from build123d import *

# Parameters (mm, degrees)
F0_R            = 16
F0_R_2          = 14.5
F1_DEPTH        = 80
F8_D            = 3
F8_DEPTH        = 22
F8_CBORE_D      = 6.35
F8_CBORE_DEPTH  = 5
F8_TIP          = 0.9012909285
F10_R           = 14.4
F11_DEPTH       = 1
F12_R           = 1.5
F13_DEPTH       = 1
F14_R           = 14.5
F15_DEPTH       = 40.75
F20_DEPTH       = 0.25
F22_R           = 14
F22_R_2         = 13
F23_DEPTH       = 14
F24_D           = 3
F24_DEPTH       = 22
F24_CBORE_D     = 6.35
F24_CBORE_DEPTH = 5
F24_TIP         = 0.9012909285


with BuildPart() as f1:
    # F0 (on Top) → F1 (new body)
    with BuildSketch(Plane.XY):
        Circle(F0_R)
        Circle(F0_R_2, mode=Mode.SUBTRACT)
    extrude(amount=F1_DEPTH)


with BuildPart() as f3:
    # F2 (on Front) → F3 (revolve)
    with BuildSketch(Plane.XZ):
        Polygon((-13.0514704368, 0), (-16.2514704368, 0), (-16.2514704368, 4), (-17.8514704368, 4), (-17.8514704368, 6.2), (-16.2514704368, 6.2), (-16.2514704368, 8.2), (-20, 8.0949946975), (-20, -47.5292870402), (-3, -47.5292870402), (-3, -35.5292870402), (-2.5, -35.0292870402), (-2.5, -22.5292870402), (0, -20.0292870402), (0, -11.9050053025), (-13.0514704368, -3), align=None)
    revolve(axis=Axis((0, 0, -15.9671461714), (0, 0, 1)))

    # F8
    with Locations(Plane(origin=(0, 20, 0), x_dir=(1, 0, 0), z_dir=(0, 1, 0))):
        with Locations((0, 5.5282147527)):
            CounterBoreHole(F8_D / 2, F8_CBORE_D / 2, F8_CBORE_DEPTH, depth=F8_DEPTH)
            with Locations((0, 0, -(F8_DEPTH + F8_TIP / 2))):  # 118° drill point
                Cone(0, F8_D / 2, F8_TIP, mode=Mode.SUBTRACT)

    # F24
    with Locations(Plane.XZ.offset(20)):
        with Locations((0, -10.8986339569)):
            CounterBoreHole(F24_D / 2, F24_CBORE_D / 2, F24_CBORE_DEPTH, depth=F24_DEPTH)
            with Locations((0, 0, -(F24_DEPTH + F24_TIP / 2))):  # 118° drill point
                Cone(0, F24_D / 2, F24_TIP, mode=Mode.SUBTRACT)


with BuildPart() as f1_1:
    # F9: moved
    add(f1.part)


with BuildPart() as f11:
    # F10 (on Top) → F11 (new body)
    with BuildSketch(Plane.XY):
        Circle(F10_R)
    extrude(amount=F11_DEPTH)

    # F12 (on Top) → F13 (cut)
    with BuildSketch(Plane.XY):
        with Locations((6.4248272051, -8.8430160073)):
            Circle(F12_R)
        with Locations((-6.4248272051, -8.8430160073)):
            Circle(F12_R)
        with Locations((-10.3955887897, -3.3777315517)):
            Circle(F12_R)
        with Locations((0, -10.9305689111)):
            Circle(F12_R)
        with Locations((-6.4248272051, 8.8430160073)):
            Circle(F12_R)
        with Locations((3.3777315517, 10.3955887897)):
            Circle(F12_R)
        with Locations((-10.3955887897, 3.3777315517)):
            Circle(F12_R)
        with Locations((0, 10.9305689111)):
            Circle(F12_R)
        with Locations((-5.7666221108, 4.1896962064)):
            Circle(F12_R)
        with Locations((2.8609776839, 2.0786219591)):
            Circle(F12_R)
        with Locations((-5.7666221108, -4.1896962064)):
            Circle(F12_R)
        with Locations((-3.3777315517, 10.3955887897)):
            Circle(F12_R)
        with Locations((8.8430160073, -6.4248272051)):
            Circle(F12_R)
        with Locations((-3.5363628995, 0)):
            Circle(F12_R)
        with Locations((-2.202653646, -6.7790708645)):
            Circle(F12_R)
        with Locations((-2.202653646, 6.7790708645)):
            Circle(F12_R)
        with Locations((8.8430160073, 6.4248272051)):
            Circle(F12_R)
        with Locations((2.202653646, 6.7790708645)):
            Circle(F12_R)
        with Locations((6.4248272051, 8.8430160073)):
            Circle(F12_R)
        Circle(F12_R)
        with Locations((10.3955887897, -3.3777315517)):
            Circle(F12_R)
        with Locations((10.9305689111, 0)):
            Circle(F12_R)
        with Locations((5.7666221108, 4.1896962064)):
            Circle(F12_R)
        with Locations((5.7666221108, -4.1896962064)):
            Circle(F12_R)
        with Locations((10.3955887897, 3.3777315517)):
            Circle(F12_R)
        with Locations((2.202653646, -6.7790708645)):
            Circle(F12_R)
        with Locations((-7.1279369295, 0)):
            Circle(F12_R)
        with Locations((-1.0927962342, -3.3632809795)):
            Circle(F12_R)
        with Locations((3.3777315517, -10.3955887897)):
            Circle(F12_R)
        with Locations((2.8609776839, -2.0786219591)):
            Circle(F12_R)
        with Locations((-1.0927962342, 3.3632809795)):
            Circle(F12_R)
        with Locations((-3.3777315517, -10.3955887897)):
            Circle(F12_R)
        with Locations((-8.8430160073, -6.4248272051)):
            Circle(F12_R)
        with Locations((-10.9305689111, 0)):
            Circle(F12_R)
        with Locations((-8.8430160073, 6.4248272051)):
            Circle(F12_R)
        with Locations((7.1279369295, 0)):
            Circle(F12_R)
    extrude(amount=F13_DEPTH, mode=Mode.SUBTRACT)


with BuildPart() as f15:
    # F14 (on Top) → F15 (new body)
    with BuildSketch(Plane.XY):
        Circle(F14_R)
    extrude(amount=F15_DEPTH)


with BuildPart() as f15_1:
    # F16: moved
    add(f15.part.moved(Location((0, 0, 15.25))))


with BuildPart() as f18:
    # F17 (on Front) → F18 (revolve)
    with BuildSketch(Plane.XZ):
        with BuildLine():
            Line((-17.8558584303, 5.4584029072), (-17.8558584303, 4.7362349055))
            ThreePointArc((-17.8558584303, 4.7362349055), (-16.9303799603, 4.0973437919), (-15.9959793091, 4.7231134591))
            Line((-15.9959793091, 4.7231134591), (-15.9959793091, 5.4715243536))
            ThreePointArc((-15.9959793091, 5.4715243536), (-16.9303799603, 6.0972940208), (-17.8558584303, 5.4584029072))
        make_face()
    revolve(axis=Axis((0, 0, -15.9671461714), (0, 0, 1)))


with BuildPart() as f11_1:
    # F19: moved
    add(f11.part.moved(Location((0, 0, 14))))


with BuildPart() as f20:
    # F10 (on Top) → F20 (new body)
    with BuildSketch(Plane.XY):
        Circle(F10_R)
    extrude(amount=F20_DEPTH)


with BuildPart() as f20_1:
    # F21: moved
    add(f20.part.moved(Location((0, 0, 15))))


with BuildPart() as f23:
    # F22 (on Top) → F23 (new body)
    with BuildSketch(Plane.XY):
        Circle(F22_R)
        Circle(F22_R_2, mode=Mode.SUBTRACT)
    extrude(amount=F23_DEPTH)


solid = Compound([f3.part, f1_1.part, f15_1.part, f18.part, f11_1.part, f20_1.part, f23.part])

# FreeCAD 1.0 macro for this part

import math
import FreeCAD as App
import Part
import Sketcher
from FreeCAD import Vector
Q = App.Units.Quantity

doc = App.newDocument("Part")
params = doc.addObject("Spreadsheet::Sheet", "Params")
for row, (alias, value) in enumerate([
    ("sketch1_diameter", "32 mm"),
    ("sketch1_diameter2", "29 mm"),
    ("pad1_length", "80 mm"),
    ("sketch2_width", "17 mm"),
    ("sketch2_height", "4 mm"),
    ("sketch2_height2", "2 mm"),
    ("sketch2_height3", "12 mm"),
    ("sketch2_height4", "3 mm"),
    ("revolution_angle", "360 deg"),
    ("sketch3_diameter", "3 mm"),
    ("hole_diameter", "3 mm"),
    ("hole_depth", "22 mm"),
    ("hole_cbore_diameter", "6.35 mm"),
    ("hole_cbore_depth", "5 mm"),
    ("sketch4_diameter", "3 mm"),
    ("hole2_diameter", "3 mm"),
    ("hole2_depth", "22 mm"),
    ("hole2_cbore_diameter", "6.35 mm"),
    ("hole2_cbore_depth", "5 mm"),
    ("sketch5_diameter", "28.8 mm"),
    ("pad2_length", "1 mm"),
    ("sketch6_diameter", "3 mm"),
    ("pocket1_length", "1 mm"),
    ("sketch7_diameter", "29 mm"),
    ("pad3_length", "40.75 mm"),
    ("sketch8_radius", "1 mm"),
    ("revolution2_angle", "360 deg"),
    ("sketch9_diameter", "28.8 mm"),
    ("pad4_length", "0.25 mm"),
    ("sketch10_diameter", "28 mm"),
    ("sketch10_diameter2", "26 mm"),
    ("pad5_length", "14 mm"),
], start=1):
    params.set(f"A{row}", alias)
    params.set(f"B{row}", "=" + value)
    params.setAlias(f"B{row}", alias)

body = doc.addObject("PartDesign::Body", "Body")

# Sketch on XY plane
sketch1 = body.newObject("Sketcher::SketchObject", "Sketch")
sketch1.AttachmentSupport = (doc.getObject("XY_Plane"), [""])
sketch1.MapMode = "FlatFace"
sketch1.addGeometry([
    Part.Circle(Vector(0, 0, 0), Vector(0, 0, 1), 16),
    Part.Circle(Vector(0, 0, 0), Vector(0, 0, 1), 14),
], False)
sketch1.addConstraint([
    Sketcher.Constraint("Coincident", 0, 3, -1, 1),
    Sketcher.Constraint("Coincident", 1, 3, -1, 1),
    Sketcher.Constraint("Diameter", 0, 32.0),
    Sketcher.Constraint("Diameter", 1, 29.0),
])
sketch1.setExpression("Constraints[2]", "Params.sketch1_diameter")
sketch1.setExpression("Constraints[3]", "Params.sketch1_diameter2")
pad1 = body.newObject("PartDesign::Pad", "Pad")
pad1.Profile = sketch1
pad1.setExpression("Length", "Params.pad1_length")
body2 = doc.addObject("PartDesign::Body", "Body001")

# Sketch on XZ plane
sketch2 = body2.newObject("Sketcher::SketchObject", "Sketch001")
sketch2.AttachmentSupport = (doc.getObject("XZ_Plane001"), [""])
sketch2.MapMode = "FlatFace"
sketch2.addGeometry([
    Part.LineSegment(Vector(-13.1, 0, 0), Vector(-16.3, 0, 0)),  # 0
    Part.LineSegment(Vector(-16.3, 0, 0), Vector(-16.3, 4, 0)),  # 1
    Part.LineSegment(Vector(-16.3, 4, 0), Vector(-17.9, 4, 0)),  # 2
    Part.LineSegment(Vector(-17.9, 4, 0), Vector(-17.9, 6.2, 0)),  # 3
    Part.LineSegment(Vector(-17.9, 6.2, 0), Vector(-16.3, 6.2, 0)),  # 4
    Part.LineSegment(Vector(-16.3, 6.2, 0), Vector(-16.3, 8.2, 0)),  # 5
    Part.LineSegment(Vector(-16.3, 8.2, 0), Vector(-20, 8.1, 0)),  # 6
    Part.LineSegment(Vector(-20, 8.1, 0), Vector(-20, -47.5, 0)),  # 7
    Part.LineSegment(Vector(-20, -47.5, 0), Vector(-3, -47.5, 0)),  # 8
    Part.LineSegment(Vector(-3, -47.5, 0), Vector(-3, -35.5, 0)),  # 9
    Part.LineSegment(Vector(-3, -35.5, 0), Vector(-2.5, -35, 0)),  # 10
    Part.LineSegment(Vector(-2.5, -35, 0), Vector(-2.5, -22.5, 0)),  # 11
    Part.LineSegment(Vector(-2.5, -22.5, 0), Vector(0, -20, 0)),  # 12
    Part.LineSegment(Vector(0, -20, 0), Vector(0, -11.9, 0)),  # 13
    Part.LineSegment(Vector(0, -11.9, 0), Vector(-13.1, -3, 0)),  # 14
    Part.LineSegment(Vector(-13.1, -3, 0), Vector(-13.1, 0, 0)),  # 15
], False)
sketch2.addConstraint([
    Sketcher.Constraint("Coincident", 0, 2, 1, 1),
    Sketcher.Constraint("Coincident", 1, 2, 2, 1),
    Sketcher.Constraint("Coincident", 2, 2, 3, 1),
    Sketcher.Constraint("Coincident", 3, 2, 4, 1),
    Sketcher.Constraint("Coincident", 4, 2, 5, 1),
    Sketcher.Constraint("Coincident", 5, 2, 6, 1),
    Sketcher.Constraint("Coincident", 6, 2, 7, 1),
    Sketcher.Constraint("Coincident", 7, 2, 8, 1),
    Sketcher.Constraint("Coincident", 8, 2, 9, 1),
    Sketcher.Constraint("Coincident", 9, 2, 10, 1),
    Sketcher.Constraint("Coincident", 10, 2, 11, 1),
    Sketcher.Constraint("Coincident", 11, 2, 12, 1),
    Sketcher.Constraint("Coincident", 12, 2, 13, 1),
    Sketcher.Constraint("Coincident", 13, 2, 14, 1),
    Sketcher.Constraint("Coincident", 14, 2, 15, 1),
    Sketcher.Constraint("Coincident", 15, 2, 0, 1),
    Sketcher.Constraint("Horizontal", 0),
    Sketcher.Constraint("Vertical", 1),
    Sketcher.Constraint("Horizontal", 2),
    Sketcher.Constraint("Vertical", 3),
    Sketcher.Constraint("Horizontal", 4),
    Sketcher.Constraint("Vertical", 5),
    Sketcher.Constraint("Vertical", 7),
    Sketcher.Constraint("Horizontal", 8),
    Sketcher.Constraint("Vertical", 9),
    Sketcher.Constraint("Vertical", 11),
    Sketcher.Constraint("Vertical", 13),
    Sketcher.Constraint("Vertical", 15),
    Sketcher.Constraint("PointOnObject", 0, 2, -1),
    Sketcher.Constraint("PointOnObject", 12, 2, -2),
    Sketcher.Constraint("Parallel", 10, 12),
    Sketcher.Constraint("Vertical", 1, 2, 4, 2),
    Sketcher.Constraint("DistanceX", 8, 1, 8, 2, 17.0),
    Sketcher.Constraint("DistanceY", 1, 1, 1, 2, 4.0),
    Sketcher.Constraint("DistanceY", 5, 1, 5, 2, 2.0),
    Sketcher.Constraint("DistanceY", 9, 1, 9, 2, 12.0),
    Sketcher.Constraint("DistanceY", 15, 1, 15, 2, 3.0),
    Sketcher.Constraint("Angle", 10, Q("45 deg")),
    Sketcher.Constraint("DistanceX", 0, 2, 0, 1, 3.2),
    Sketcher.Constraint("DistanceX", 2, 2, 2, 1, 1.6),
    Sketcher.Constraint("DistanceY", 3, 1, 3, 2, 2.2),
    Sketcher.Constraint("DistanceY", 11, 1, 11, 2, 12.5),
    Sketcher.Constraint("DistanceX", 6, 2, -1, 1, 20.0),
    Sketcher.Constraint("DistanceY", 9, 2, 11, 2, 13.0),
    Sketcher.Constraint("Distance", 14, 15.8),
    Sketcher.Constraint("Distance", 6, 3.75),
    Sketcher.Constraint("DistanceY", 7, 2, 7, 1, 55.624282),
    Sketcher.Constraint("DistanceY", 13, 1, 13, 2, 8.124282),
])
sketch2.setExpression("Constraints[32]", "Params.sketch2_width")
sketch2.setExpression("Constraints[33]", "Params.sketch2_height")
sketch2.setExpression("Constraints[34]", "Params.sketch2_height2")
sketch2.setExpression("Constraints[35]", "Params.sketch2_height3")
sketch2.setExpression("Constraints[36]", "Params.sketch2_height4")
revolution = body2.newObject("PartDesign::Revolution", "Revolution")
revolution.Profile = sketch2
revolution.ReferenceAxis = (sketch2, ["V_Axis"])
revolution.setExpression("Angle", "Params.revolution_angle")

# Sketch on XZ plane
sketch3 = body2.newObject("Sketcher::SketchObject", "Sketch002")
sketch3.AttachmentSupport = (doc.getObject("XZ_Plane001"), [""])
sketch3.MapMode = "FlatFace"
sketch3.AttachmentOffset = App.Placement(Vector(0, 0, -20), App.Rotation())
sketch3.addGeometry(Part.Circle(Vector(0, -5.5, 0), Vector(0, 0, 1), 1.5), False)
sketch3.addConstraint([
    Sketcher.Constraint("PointOnObject", 0, 3, -2),
    Sketcher.Constraint("Diameter", 0, 3.0),
    Sketcher.Constraint("DistanceY", 0, 3, -1, 1, 5.528215),
])
sketch3.setExpression("Constraints[1]", "Params.sketch3_diameter")
doc.recompute()
hole = body2.newObject("PartDesign::Hole", "Hole")
hole.Profile = sketch3
hole.ThreadType = "None"
hole.setExpression("Diameter", "Params.hole_diameter")
hole.DepthType = "Dimension"
hole.setExpression("Depth", "Params.hole_depth")
hole.DrillPoint = "Angled"
hole.DrillPointAngle = 118
hole.HoleCutType = "Counterbore"
hole.setExpression("HoleCutDiameter", "Params.hole_cbore_diameter")
hole.setExpression("HoleCutDepth", "Params.hole_cbore_depth")
hole.Reversed = True

# Sketch on XZ plane
sketch4 = body2.newObject("Sketcher::SketchObject", "Sketch003")
sketch4.AttachmentSupport = (doc.getObject("XZ_Plane001"), [""])
sketch4.MapMode = "FlatFace"
sketch4.AttachmentOffset = App.Placement(Vector(0, 0, 20), App.Rotation())
sketch4.addGeometry(Part.Circle(Vector(0, -10.9, 0), Vector(0, 0, 1), 1.5), False)
sketch4.addConstraint([
    Sketcher.Constraint("PointOnObject", 0, 3, -2),
    Sketcher.Constraint("Diameter", 0, 3.0),
    Sketcher.Constraint("DistanceY", 0, 3, -1, 1, 10.898634),
])
sketch4.setExpression("Constraints[1]", "Params.sketch4_diameter")
doc.recompute()
hole2 = body2.newObject("PartDesign::Hole", "Hole001")
hole2.Profile = sketch4
hole2.ThreadType = "None"
hole2.setExpression("Diameter", "Params.hole2_diameter")
hole2.DepthType = "Dimension"
hole2.setExpression("Depth", "Params.hole2_depth")
hole2.DrillPoint = "Angled"
hole2.DrillPointAngle = 118
hole2.HoleCutType = "Counterbore"
hole2.setExpression("HoleCutDiameter", "Params.hole2_cbore_diameter")
hole2.setExpression("HoleCutDepth", "Params.hole2_cbore_depth")
body3 = doc.addObject("PartDesign::Body", "Body002")

# Sketch on XY plane
sketch5 = body3.newObject("Sketcher::SketchObject", "Sketch004")
sketch5.AttachmentSupport = (doc.getObject("XY_Plane002"), [""])
sketch5.MapMode = "FlatFace"
sketch5.addGeometry(Part.Circle(Vector(0, 0, 0), Vector(0, 0, 1), 14), False)
sketch5.addConstraint([
    Sketcher.Constraint("Coincident", 0, 3, -1, 1),
    Sketcher.Constraint("Diameter", 0, 28.8),
])
sketch5.setExpression("Constraints[1]", "Params.sketch5_diameter")
pad2 = body3.newObject("PartDesign::Pad", "Pad001")
pad2.Profile = sketch5
pad2.setExpression("Length", "Params.pad2_length")

# Sketch on XY plane
sketch6 = body3.newObject("Sketcher::SketchObject", "Sketch005")
sketch6.AttachmentSupport = (doc.getObject("XY_Plane002"), [""])
sketch6.MapMode = "FlatFace"
sketch6.addGeometry([
    Part.Circle(Vector(6.4, -8.8, 0), Vector(0, 0, 1), 1.5),  # 0
    Part.Circle(Vector(-6.4, -8.8, 0), Vector(0, 0, 1), 1.5),  # 1
    Part.Circle(Vector(-10.4, -3.4, 0), Vector(0, 0, 1), 1.5),  # 2
    Part.Circle(Vector(0, -10.9, 0), Vector(0, 0, 1), 1.5),  # 3
    Part.Circle(Vector(-6.4, 8.8, 0), Vector(0, 0, 1), 1.5),  # 4
    Part.Circle(Vector(3.4, 10.4, 0), Vector(0, 0, 1), 1.5),  # 5
    Part.Circle(Vector(-10.4, 3.4, 0), Vector(0, 0, 1), 1.5),  # 6
    Part.Circle(Vector(0, 10.9, 0), Vector(0, 0, 1), 1.5),  # 7
    Part.Circle(Vector(-5.8, 4.2, 0), Vector(0, 0, 1), 1.5),  # 8
    Part.Circle(Vector(2.9, 2.1, 0), Vector(0, 0, 1), 1.5),  # 9
    Part.Circle(Vector(-5.8, -4.2, 0), Vector(0, 0, 1), 1.5),  # 10
    Part.Circle(Vector(-3.4, 10.4, 0), Vector(0, 0, 1), 1.5),  # 11
    Part.Circle(Vector(8.8, -6.4, 0), Vector(0, 0, 1), 1.5),  # 12
    Part.Circle(Vector(-3.5, 0, 0), Vector(0, 0, 1), 1.5),  # 13
    Part.Circle(Vector(-2.2, -6.8, 0), Vector(0, 0, 1), 1.5),  # 14
    Part.Circle(Vector(-2.2, 6.8, 0), Vector(0, 0, 1), 1.5),  # 15
    Part.Circle(Vector(8.8, 6.4, 0), Vector(0, 0, 1), 1.5),  # 16
    Part.Circle(Vector(2.2, 6.8, 0), Vector(0, 0, 1), 1.5),  # 17
    Part.Circle(Vector(6.4, 8.8, 0), Vector(0, 0, 1), 1.5),  # 18
    Part.Circle(Vector(0, 0, 0), Vector(0, 0, 1), 1.5),  # 19
    Part.Circle(Vector(10.4, -3.4, 0), Vector(0, 0, 1), 1.5),  # 20
    Part.Circle(Vector(10.9, 0, 0), Vector(0, 0, 1), 1.5),  # 21
    Part.Circle(Vector(5.8, 4.2, 0), Vector(0, 0, 1), 1.5),  # 22
    Part.Circle(Vector(5.8, -4.2, 0), Vector(0, 0, 1), 1.5),  # 23
    Part.Circle(Vector(10.4, 3.4, 0), Vector(0, 0, 1), 1.5),  # 24
    Part.Circle(Vector(2.2, -6.8, 0), Vector(0, 0, 1), 1.5),  # 25
    Part.Circle(Vector(-7.1, 0, 0), Vector(0, 0, 1), 1.5),  # 26
    Part.Circle(Vector(-1.1, -3.4, 0), Vector(0, 0, 1), 1.5),  # 27
    Part.Circle(Vector(3.4, -10.4, 0), Vector(0, 0, 1), 1.5),  # 28
    Part.Circle(Vector(2.9, -2.1, 0), Vector(0, 0, 1), 1.5),  # 29
    Part.Circle(Vector(-1.1, 3.4, 0), Vector(0, 0, 1), 1.5),  # 30
    Part.Circle(Vector(-3.4, -10.4, 0), Vector(0, 0, 1), 1.5),  # 31
    Part.Circle(Vector(-8.8, -6.4, 0), Vector(0, 0, 1), 1.5),  # 32
    Part.Circle(Vector(-10.9, 0, 0), Vector(0, 0, 1), 1.5),  # 33
    Part.Circle(Vector(-8.8, 6.4, 0), Vector(0, 0, 1), 1.5),  # 34
    Part.Circle(Vector(7.1, 0, 0), Vector(0, 0, 1), 1.5),  # 35
], False)
sketch6.addConstraint([
    Sketcher.Constraint("Coincident", 19, 3, -1, 1),
    Sketcher.Constraint("Equal", 0, 1),
    Sketcher.Constraint("Equal", 1, 2),
    Sketcher.Constraint("Equal", 2, 3),
    Sketcher.Constraint("Equal", 3, 4),
    Sketcher.Constraint("Equal", 4, 5),
    Sketcher.Constraint("Equal", 5, 6),
    Sketcher.Constraint("Equal", 6, 7),
    Sketcher.Constraint("Equal", 7, 8),
    Sketcher.Constraint("Equal", 8, 9),
    Sketcher.Constraint("Equal", 9, 10),
    Sketcher.Constraint("Equal", 10, 11),
    Sketcher.Constraint("Equal", 11, 12),
    Sketcher.Constraint("Equal", 12, 13),
    Sketcher.Constraint("Equal", 13, 14),
    Sketcher.Constraint("Equal", 14, 15),
    Sketcher.Constraint("Equal", 15, 16),
    Sketcher.Constraint("Equal", 16, 17),
    Sketcher.Constraint("Equal", 17, 18),
    Sketcher.Constraint("Equal", 18, 19),
    Sketcher.Constraint("Equal", 19, 20),
    Sketcher.Constraint("Equal", 20, 21),
    Sketcher.Constraint("Equal", 21, 22),
    Sketcher.Constraint("Equal", 22, 23),
    Sketcher.Constraint("Equal", 23, 24),
    Sketcher.Constraint("Equal", 24, 25),
    Sketcher.Constraint("Equal", 25, 26),
    Sketcher.Constraint("Equal", 26, 27),
    Sketcher.Constraint("Equal", 27, 28),
    Sketcher.Constraint("Equal", 28, 29),
    Sketcher.Constraint("Equal", 29, 30),
    Sketcher.Constraint("Equal", 30, 31),
    Sketcher.Constraint("Equal", 31, 32),
    Sketcher.Constraint("Equal", 32, 33),
    Sketcher.Constraint("Equal", 33, 34),
    Sketcher.Constraint("Equal", 34, 35),
    Sketcher.Constraint("Symmetric", 0, 3, 4, 3, -1, 1),
    Sketcher.Constraint("Symmetric", 3, 3, 7, 3, -1, 1),
    Sketcher.Constraint("Symmetric", 14, 3, 17, 3, -1, 1),
    Sketcher.Constraint("Symmetric", 1, 3, 18, 3, -1, 1),
    Sketcher.Constraint("Symmetric", 6, 3, 20, 3, -1, 1),
    Sketcher.Constraint("Symmetric", 10, 3, 22, 3, -1, 1),
    Sketcher.Constraint("Symmetric", 8, 3, 23, 3, -1, 1),
    Sketcher.Constraint("Symmetric", 2, 3, 24, 3, -1, 1),
    Sketcher.Constraint("Symmetric", 15, 3, 25, 3, -1, 1),
    Sketcher.Constraint("Symmetric", 11, 3, 28, 3, -1, 1),
    Sketcher.Constraint("Symmetric", 5, 3, 31, 3, -1, 1),
    Sketcher.Constraint("Symmetric", 16, 3, 32, 3, -1, 1),
    Sketcher.Constraint("Symmetric", 21, 3, 33, 3, -1, 1),
    Sketcher.Constraint("Symmetric", 12, 3, 34, 3, -1, 1),
    Sketcher.Constraint("Symmetric", 26, 3, 35, 3, -1, 1),
    Sketcher.Constraint("Symmetric", 0, 3, 1, 3, -2),
    Sketcher.Constraint("Symmetric", 5, 3, 11, 3, -2),
    Sketcher.Constraint("Symmetric", 15, 3, 17, 3, -2),
    Sketcher.Constraint("Symmetric", 2, 3, 20, 3, -2),
    Sketcher.Constraint("Symmetric", 8, 3, 22, 3, -2),
    Sketcher.Constraint("Symmetric", 12, 3, 32, 3, -2),
    Sketcher.Constraint("Symmetric", 9, 3, 29, 3, -1),
    Sketcher.Constraint("Symmetric", 27, 3, 30, 3, -1),
    Sketcher.Constraint("PointOnObject", 3, 3, -2),
    Sketcher.Constraint("PointOnObject", 13, 3, -1),
    Sketcher.Constraint("PointOnObject", 21, 3, -1),
    Sketcher.Constraint("PointOnObject", 26, 3, -1),
    Sketcher.Constraint("Diameter", 0, 3.0),
    Sketcher.Constraint("DistanceY", 3, 3, 6, 3, 14.3083),
    Sketcher.Constraint("DistanceX", 8, 3, 9, 3, 8.6276),
    Sketcher.Constraint("DistanceY", 3, 3, 14, 3, 4.151498),
    Sketcher.Constraint("DistanceX", 2, 3, -1, 1, 10.395589),
    Sketcher.Constraint("DistanceY", 2, 3, -1, 1, 3.377732),
    Sketcher.Constraint("DistanceX", -1, 1, 5, 3, 3.377732),
    Sketcher.Constraint("DistanceY", -1, 1, 5, 3, 10.395589),
    Sketcher.Constraint("DistanceY", -1, 1, 9, 3, 2.078622),
    Sketcher.Constraint("DistanceX", -1, 1, 21, 3, 10.930569),
    Sketcher.Constraint("DistanceY", 27, 3, -1, 1, 3.363281),
    Sketcher.Constraint("DistanceX", 2, 3, 1, 3, 3.970762),
    Sketcher.Constraint("DistanceY", 8, 3, 4, 3, 4.65332),
    Sketcher.Constraint("DistanceX", 9, 3, 0, 3, 3.56385),
    Sketcher.Constraint("DistanceX", 0, 3, 12, 3, 2.418189),
    Sketcher.Constraint("DistanceY", 0, 3, 12, 3, 2.418189),
    Sketcher.Constraint("DistanceY", 3, 3, 12, 3, 4.505742),
    Sketcher.Constraint("DistanceX", 8, 3, 13, 3, 2.230259),
    Sketcher.Constraint("DistanceX", 10, 3, 14, 3, 3.563968),
    Sketcher.Constraint("DistanceX", 2, 3, 26, 3, 3.267652),
    Sketcher.Constraint("DistanceX", 27, 3, 25, 3, 3.29545),
])
sketch6.setExpression("Constraints[63]", "Params.sketch6_diameter")
pocket1 = body3.newObject("PartDesign::Pocket", "Pocket")
pocket1.Profile = sketch6
pocket1.setExpression("Length", "Params.pocket1_length")
pocket1.Reversed = True
body4 = doc.addObject("PartDesign::Body", "Body003")

# Sketch on XY plane
sketch7 = body4.newObject("Sketcher::SketchObject", "Sketch006")
sketch7.AttachmentSupport = (doc.getObject("XY_Plane003"), [""])
sketch7.MapMode = "FlatFace"
sketch7.addGeometry(Part.Circle(Vector(0, 0, 0), Vector(0, 0, 1), 14), False)
sketch7.addConstraint([
    Sketcher.Constraint("Coincident", 0, 3, -1, 1),
    Sketcher.Constraint("Diameter", 0, 29.0),
])
sketch7.setExpression("Constraints[1]", "Params.sketch7_diameter")
pad3 = body4.newObject("PartDesign::Pad", "Pad002")
pad3.Profile = sketch7
pad3.setExpression("Length", "Params.pad3_length")
body5 = doc.addObject("PartDesign::Body", "Body004")
doc.recompute()

body4.Placement = App.Placement(Vector(0, 0, 15.25), App.Rotation(Vector(0, 0, 1), 0))
boolean = body5.newObject("PartDesign::Boolean", "Boolean")
boolean.Type = "Fuse"
boolean.addObjects([body4])
body6 = doc.addObject("PartDesign::Body", "Body005")

# Sketch on XZ plane
sketch8 = body6.newObject("Sketcher::SketchObject", "Sketch007")
sketch8.AttachmentSupport = (doc.getObject("XZ_Plane005"), [""])
sketch8.MapMode = "FlatFace"
sketch8.addGeometry([
    Part.LineSegment(Vector(-17.9, 5.5, 0), Vector(-17.9, 4.7, 0)),
    Part.ArcOfCircle(Part.Circle(Vector(-16.9, 5.1, 0), Vector(0, 0, 1), 1), math.radians(-159), math.radians(-22)),
    Part.LineSegment(Vector(-16, 4.7, 0), Vector(-16, 5.5, 0)),
    Part.ArcOfCircle(Part.Circle(Vector(-16.9, 5.1, 0), Vector(0, 0, 1), 1), math.radians(22), math.radians(159)),
], False)
sketch8.addConstraint([
    Sketcher.Constraint("Coincident", 0, 2, 1, 1),
    Sketcher.Constraint("Coincident", 1, 2, 2, 1),
    Sketcher.Constraint("Coincident", 2, 2, 3, 1),
    Sketcher.Constraint("Coincident", 3, 2, 0, 1),
    Sketcher.Constraint("Vertical", 0),
    Sketcher.Constraint("Vertical", 2),
    Sketcher.Constraint("Coincident", 3, 3, 1, 3),
    Sketcher.Constraint("Equal", 1, 3),
    Sketcher.Constraint("Radius", 1, 1.0),
    Sketcher.Constraint("DistanceY", 0, 2, 0, 1, 0.722168),
    Sketcher.Constraint("DistanceY", 2, 1, 2, 2, 0.748411),
    Sketcher.Constraint("DistanceY", -1, 1, 1, 3, 5.097319),
    Sketcher.Constraint("DistanceX", 0, 2, -1, 1, 17.855858),
])
sketch8.setExpression("Constraints[8]", "Params.sketch8_radius")
revolution2 = body6.newObject("PartDesign::Revolution", "Revolution001")
revolution2.Profile = sketch8
revolution2.ReferenceAxis = (sketch8, ["V_Axis"])
revolution2.setExpression("Angle", "Params.revolution2_angle")
body7 = doc.addObject("PartDesign::Body", "Body006")
doc.recompute()

body3.Placement = App.Placement(Vector(0, 0, 14), App.Rotation(Vector(0, 0, 1), 0))
boolean2 = body7.newObject("PartDesign::Boolean", "Boolean001")
boolean2.Type = "Fuse"
boolean2.addObjects([body3])
body8 = doc.addObject("PartDesign::Body", "Body007")

# Sketch on XY plane
sketch9 = body8.newObject("Sketcher::SketchObject", "Sketch008")
sketch9.AttachmentSupport = (doc.getObject("XY_Plane007"), [""])
sketch9.MapMode = "FlatFace"
sketch9.addGeometry(Part.Circle(Vector(0, 0, 0), Vector(0, 0, 1), 14), False)
sketch9.addConstraint([
    Sketcher.Constraint("Coincident", 0, 3, -1, 1),
    Sketcher.Constraint("Diameter", 0, 28.8),
])
sketch9.setExpression("Constraints[1]", "Params.sketch9_diameter")
pad4 = body8.newObject("PartDesign::Pad", "Pad003")
pad4.Profile = sketch9
pad4.setExpression("Length", "Params.pad4_length")
body9 = doc.addObject("PartDesign::Body", "Body008")
doc.recompute()

body8.Placement = App.Placement(Vector(0, 0, 15), App.Rotation(Vector(0, 0, 1), 0))
boolean3 = body9.newObject("PartDesign::Boolean", "Boolean002")
boolean3.Type = "Fuse"
boolean3.addObjects([body8])
body10 = doc.addObject("PartDesign::Body", "Body009")

# Sketch on XY plane
sketch10 = body10.newObject("Sketcher::SketchObject", "Sketch009")
sketch10.AttachmentSupport = (doc.getObject("XY_Plane009"), [""])
sketch10.MapMode = "FlatFace"
sketch10.addGeometry([
    Part.Circle(Vector(0, 0, 0), Vector(0, 0, 1), 14),
    Part.Circle(Vector(0, 0, 0), Vector(0, 0, 1), 13),
], False)
sketch10.addConstraint([
    Sketcher.Constraint("Coincident", 0, 3, -1, 1),
    Sketcher.Constraint("Coincident", 1, 3, -1, 1),
    Sketcher.Constraint("Diameter", 0, 28.0),
    Sketcher.Constraint("Diameter", 1, 26.0),
])
sketch10.setExpression("Constraints[2]", "Params.sketch10_diameter")
sketch10.setExpression("Constraints[3]", "Params.sketch10_diameter2")
pad5 = body10.newObject("PartDesign::Pad", "Pad004")
pad5.Profile = sketch10
pad5.setExpression("Length", "Params.pad5_length")

doc.recompute()
